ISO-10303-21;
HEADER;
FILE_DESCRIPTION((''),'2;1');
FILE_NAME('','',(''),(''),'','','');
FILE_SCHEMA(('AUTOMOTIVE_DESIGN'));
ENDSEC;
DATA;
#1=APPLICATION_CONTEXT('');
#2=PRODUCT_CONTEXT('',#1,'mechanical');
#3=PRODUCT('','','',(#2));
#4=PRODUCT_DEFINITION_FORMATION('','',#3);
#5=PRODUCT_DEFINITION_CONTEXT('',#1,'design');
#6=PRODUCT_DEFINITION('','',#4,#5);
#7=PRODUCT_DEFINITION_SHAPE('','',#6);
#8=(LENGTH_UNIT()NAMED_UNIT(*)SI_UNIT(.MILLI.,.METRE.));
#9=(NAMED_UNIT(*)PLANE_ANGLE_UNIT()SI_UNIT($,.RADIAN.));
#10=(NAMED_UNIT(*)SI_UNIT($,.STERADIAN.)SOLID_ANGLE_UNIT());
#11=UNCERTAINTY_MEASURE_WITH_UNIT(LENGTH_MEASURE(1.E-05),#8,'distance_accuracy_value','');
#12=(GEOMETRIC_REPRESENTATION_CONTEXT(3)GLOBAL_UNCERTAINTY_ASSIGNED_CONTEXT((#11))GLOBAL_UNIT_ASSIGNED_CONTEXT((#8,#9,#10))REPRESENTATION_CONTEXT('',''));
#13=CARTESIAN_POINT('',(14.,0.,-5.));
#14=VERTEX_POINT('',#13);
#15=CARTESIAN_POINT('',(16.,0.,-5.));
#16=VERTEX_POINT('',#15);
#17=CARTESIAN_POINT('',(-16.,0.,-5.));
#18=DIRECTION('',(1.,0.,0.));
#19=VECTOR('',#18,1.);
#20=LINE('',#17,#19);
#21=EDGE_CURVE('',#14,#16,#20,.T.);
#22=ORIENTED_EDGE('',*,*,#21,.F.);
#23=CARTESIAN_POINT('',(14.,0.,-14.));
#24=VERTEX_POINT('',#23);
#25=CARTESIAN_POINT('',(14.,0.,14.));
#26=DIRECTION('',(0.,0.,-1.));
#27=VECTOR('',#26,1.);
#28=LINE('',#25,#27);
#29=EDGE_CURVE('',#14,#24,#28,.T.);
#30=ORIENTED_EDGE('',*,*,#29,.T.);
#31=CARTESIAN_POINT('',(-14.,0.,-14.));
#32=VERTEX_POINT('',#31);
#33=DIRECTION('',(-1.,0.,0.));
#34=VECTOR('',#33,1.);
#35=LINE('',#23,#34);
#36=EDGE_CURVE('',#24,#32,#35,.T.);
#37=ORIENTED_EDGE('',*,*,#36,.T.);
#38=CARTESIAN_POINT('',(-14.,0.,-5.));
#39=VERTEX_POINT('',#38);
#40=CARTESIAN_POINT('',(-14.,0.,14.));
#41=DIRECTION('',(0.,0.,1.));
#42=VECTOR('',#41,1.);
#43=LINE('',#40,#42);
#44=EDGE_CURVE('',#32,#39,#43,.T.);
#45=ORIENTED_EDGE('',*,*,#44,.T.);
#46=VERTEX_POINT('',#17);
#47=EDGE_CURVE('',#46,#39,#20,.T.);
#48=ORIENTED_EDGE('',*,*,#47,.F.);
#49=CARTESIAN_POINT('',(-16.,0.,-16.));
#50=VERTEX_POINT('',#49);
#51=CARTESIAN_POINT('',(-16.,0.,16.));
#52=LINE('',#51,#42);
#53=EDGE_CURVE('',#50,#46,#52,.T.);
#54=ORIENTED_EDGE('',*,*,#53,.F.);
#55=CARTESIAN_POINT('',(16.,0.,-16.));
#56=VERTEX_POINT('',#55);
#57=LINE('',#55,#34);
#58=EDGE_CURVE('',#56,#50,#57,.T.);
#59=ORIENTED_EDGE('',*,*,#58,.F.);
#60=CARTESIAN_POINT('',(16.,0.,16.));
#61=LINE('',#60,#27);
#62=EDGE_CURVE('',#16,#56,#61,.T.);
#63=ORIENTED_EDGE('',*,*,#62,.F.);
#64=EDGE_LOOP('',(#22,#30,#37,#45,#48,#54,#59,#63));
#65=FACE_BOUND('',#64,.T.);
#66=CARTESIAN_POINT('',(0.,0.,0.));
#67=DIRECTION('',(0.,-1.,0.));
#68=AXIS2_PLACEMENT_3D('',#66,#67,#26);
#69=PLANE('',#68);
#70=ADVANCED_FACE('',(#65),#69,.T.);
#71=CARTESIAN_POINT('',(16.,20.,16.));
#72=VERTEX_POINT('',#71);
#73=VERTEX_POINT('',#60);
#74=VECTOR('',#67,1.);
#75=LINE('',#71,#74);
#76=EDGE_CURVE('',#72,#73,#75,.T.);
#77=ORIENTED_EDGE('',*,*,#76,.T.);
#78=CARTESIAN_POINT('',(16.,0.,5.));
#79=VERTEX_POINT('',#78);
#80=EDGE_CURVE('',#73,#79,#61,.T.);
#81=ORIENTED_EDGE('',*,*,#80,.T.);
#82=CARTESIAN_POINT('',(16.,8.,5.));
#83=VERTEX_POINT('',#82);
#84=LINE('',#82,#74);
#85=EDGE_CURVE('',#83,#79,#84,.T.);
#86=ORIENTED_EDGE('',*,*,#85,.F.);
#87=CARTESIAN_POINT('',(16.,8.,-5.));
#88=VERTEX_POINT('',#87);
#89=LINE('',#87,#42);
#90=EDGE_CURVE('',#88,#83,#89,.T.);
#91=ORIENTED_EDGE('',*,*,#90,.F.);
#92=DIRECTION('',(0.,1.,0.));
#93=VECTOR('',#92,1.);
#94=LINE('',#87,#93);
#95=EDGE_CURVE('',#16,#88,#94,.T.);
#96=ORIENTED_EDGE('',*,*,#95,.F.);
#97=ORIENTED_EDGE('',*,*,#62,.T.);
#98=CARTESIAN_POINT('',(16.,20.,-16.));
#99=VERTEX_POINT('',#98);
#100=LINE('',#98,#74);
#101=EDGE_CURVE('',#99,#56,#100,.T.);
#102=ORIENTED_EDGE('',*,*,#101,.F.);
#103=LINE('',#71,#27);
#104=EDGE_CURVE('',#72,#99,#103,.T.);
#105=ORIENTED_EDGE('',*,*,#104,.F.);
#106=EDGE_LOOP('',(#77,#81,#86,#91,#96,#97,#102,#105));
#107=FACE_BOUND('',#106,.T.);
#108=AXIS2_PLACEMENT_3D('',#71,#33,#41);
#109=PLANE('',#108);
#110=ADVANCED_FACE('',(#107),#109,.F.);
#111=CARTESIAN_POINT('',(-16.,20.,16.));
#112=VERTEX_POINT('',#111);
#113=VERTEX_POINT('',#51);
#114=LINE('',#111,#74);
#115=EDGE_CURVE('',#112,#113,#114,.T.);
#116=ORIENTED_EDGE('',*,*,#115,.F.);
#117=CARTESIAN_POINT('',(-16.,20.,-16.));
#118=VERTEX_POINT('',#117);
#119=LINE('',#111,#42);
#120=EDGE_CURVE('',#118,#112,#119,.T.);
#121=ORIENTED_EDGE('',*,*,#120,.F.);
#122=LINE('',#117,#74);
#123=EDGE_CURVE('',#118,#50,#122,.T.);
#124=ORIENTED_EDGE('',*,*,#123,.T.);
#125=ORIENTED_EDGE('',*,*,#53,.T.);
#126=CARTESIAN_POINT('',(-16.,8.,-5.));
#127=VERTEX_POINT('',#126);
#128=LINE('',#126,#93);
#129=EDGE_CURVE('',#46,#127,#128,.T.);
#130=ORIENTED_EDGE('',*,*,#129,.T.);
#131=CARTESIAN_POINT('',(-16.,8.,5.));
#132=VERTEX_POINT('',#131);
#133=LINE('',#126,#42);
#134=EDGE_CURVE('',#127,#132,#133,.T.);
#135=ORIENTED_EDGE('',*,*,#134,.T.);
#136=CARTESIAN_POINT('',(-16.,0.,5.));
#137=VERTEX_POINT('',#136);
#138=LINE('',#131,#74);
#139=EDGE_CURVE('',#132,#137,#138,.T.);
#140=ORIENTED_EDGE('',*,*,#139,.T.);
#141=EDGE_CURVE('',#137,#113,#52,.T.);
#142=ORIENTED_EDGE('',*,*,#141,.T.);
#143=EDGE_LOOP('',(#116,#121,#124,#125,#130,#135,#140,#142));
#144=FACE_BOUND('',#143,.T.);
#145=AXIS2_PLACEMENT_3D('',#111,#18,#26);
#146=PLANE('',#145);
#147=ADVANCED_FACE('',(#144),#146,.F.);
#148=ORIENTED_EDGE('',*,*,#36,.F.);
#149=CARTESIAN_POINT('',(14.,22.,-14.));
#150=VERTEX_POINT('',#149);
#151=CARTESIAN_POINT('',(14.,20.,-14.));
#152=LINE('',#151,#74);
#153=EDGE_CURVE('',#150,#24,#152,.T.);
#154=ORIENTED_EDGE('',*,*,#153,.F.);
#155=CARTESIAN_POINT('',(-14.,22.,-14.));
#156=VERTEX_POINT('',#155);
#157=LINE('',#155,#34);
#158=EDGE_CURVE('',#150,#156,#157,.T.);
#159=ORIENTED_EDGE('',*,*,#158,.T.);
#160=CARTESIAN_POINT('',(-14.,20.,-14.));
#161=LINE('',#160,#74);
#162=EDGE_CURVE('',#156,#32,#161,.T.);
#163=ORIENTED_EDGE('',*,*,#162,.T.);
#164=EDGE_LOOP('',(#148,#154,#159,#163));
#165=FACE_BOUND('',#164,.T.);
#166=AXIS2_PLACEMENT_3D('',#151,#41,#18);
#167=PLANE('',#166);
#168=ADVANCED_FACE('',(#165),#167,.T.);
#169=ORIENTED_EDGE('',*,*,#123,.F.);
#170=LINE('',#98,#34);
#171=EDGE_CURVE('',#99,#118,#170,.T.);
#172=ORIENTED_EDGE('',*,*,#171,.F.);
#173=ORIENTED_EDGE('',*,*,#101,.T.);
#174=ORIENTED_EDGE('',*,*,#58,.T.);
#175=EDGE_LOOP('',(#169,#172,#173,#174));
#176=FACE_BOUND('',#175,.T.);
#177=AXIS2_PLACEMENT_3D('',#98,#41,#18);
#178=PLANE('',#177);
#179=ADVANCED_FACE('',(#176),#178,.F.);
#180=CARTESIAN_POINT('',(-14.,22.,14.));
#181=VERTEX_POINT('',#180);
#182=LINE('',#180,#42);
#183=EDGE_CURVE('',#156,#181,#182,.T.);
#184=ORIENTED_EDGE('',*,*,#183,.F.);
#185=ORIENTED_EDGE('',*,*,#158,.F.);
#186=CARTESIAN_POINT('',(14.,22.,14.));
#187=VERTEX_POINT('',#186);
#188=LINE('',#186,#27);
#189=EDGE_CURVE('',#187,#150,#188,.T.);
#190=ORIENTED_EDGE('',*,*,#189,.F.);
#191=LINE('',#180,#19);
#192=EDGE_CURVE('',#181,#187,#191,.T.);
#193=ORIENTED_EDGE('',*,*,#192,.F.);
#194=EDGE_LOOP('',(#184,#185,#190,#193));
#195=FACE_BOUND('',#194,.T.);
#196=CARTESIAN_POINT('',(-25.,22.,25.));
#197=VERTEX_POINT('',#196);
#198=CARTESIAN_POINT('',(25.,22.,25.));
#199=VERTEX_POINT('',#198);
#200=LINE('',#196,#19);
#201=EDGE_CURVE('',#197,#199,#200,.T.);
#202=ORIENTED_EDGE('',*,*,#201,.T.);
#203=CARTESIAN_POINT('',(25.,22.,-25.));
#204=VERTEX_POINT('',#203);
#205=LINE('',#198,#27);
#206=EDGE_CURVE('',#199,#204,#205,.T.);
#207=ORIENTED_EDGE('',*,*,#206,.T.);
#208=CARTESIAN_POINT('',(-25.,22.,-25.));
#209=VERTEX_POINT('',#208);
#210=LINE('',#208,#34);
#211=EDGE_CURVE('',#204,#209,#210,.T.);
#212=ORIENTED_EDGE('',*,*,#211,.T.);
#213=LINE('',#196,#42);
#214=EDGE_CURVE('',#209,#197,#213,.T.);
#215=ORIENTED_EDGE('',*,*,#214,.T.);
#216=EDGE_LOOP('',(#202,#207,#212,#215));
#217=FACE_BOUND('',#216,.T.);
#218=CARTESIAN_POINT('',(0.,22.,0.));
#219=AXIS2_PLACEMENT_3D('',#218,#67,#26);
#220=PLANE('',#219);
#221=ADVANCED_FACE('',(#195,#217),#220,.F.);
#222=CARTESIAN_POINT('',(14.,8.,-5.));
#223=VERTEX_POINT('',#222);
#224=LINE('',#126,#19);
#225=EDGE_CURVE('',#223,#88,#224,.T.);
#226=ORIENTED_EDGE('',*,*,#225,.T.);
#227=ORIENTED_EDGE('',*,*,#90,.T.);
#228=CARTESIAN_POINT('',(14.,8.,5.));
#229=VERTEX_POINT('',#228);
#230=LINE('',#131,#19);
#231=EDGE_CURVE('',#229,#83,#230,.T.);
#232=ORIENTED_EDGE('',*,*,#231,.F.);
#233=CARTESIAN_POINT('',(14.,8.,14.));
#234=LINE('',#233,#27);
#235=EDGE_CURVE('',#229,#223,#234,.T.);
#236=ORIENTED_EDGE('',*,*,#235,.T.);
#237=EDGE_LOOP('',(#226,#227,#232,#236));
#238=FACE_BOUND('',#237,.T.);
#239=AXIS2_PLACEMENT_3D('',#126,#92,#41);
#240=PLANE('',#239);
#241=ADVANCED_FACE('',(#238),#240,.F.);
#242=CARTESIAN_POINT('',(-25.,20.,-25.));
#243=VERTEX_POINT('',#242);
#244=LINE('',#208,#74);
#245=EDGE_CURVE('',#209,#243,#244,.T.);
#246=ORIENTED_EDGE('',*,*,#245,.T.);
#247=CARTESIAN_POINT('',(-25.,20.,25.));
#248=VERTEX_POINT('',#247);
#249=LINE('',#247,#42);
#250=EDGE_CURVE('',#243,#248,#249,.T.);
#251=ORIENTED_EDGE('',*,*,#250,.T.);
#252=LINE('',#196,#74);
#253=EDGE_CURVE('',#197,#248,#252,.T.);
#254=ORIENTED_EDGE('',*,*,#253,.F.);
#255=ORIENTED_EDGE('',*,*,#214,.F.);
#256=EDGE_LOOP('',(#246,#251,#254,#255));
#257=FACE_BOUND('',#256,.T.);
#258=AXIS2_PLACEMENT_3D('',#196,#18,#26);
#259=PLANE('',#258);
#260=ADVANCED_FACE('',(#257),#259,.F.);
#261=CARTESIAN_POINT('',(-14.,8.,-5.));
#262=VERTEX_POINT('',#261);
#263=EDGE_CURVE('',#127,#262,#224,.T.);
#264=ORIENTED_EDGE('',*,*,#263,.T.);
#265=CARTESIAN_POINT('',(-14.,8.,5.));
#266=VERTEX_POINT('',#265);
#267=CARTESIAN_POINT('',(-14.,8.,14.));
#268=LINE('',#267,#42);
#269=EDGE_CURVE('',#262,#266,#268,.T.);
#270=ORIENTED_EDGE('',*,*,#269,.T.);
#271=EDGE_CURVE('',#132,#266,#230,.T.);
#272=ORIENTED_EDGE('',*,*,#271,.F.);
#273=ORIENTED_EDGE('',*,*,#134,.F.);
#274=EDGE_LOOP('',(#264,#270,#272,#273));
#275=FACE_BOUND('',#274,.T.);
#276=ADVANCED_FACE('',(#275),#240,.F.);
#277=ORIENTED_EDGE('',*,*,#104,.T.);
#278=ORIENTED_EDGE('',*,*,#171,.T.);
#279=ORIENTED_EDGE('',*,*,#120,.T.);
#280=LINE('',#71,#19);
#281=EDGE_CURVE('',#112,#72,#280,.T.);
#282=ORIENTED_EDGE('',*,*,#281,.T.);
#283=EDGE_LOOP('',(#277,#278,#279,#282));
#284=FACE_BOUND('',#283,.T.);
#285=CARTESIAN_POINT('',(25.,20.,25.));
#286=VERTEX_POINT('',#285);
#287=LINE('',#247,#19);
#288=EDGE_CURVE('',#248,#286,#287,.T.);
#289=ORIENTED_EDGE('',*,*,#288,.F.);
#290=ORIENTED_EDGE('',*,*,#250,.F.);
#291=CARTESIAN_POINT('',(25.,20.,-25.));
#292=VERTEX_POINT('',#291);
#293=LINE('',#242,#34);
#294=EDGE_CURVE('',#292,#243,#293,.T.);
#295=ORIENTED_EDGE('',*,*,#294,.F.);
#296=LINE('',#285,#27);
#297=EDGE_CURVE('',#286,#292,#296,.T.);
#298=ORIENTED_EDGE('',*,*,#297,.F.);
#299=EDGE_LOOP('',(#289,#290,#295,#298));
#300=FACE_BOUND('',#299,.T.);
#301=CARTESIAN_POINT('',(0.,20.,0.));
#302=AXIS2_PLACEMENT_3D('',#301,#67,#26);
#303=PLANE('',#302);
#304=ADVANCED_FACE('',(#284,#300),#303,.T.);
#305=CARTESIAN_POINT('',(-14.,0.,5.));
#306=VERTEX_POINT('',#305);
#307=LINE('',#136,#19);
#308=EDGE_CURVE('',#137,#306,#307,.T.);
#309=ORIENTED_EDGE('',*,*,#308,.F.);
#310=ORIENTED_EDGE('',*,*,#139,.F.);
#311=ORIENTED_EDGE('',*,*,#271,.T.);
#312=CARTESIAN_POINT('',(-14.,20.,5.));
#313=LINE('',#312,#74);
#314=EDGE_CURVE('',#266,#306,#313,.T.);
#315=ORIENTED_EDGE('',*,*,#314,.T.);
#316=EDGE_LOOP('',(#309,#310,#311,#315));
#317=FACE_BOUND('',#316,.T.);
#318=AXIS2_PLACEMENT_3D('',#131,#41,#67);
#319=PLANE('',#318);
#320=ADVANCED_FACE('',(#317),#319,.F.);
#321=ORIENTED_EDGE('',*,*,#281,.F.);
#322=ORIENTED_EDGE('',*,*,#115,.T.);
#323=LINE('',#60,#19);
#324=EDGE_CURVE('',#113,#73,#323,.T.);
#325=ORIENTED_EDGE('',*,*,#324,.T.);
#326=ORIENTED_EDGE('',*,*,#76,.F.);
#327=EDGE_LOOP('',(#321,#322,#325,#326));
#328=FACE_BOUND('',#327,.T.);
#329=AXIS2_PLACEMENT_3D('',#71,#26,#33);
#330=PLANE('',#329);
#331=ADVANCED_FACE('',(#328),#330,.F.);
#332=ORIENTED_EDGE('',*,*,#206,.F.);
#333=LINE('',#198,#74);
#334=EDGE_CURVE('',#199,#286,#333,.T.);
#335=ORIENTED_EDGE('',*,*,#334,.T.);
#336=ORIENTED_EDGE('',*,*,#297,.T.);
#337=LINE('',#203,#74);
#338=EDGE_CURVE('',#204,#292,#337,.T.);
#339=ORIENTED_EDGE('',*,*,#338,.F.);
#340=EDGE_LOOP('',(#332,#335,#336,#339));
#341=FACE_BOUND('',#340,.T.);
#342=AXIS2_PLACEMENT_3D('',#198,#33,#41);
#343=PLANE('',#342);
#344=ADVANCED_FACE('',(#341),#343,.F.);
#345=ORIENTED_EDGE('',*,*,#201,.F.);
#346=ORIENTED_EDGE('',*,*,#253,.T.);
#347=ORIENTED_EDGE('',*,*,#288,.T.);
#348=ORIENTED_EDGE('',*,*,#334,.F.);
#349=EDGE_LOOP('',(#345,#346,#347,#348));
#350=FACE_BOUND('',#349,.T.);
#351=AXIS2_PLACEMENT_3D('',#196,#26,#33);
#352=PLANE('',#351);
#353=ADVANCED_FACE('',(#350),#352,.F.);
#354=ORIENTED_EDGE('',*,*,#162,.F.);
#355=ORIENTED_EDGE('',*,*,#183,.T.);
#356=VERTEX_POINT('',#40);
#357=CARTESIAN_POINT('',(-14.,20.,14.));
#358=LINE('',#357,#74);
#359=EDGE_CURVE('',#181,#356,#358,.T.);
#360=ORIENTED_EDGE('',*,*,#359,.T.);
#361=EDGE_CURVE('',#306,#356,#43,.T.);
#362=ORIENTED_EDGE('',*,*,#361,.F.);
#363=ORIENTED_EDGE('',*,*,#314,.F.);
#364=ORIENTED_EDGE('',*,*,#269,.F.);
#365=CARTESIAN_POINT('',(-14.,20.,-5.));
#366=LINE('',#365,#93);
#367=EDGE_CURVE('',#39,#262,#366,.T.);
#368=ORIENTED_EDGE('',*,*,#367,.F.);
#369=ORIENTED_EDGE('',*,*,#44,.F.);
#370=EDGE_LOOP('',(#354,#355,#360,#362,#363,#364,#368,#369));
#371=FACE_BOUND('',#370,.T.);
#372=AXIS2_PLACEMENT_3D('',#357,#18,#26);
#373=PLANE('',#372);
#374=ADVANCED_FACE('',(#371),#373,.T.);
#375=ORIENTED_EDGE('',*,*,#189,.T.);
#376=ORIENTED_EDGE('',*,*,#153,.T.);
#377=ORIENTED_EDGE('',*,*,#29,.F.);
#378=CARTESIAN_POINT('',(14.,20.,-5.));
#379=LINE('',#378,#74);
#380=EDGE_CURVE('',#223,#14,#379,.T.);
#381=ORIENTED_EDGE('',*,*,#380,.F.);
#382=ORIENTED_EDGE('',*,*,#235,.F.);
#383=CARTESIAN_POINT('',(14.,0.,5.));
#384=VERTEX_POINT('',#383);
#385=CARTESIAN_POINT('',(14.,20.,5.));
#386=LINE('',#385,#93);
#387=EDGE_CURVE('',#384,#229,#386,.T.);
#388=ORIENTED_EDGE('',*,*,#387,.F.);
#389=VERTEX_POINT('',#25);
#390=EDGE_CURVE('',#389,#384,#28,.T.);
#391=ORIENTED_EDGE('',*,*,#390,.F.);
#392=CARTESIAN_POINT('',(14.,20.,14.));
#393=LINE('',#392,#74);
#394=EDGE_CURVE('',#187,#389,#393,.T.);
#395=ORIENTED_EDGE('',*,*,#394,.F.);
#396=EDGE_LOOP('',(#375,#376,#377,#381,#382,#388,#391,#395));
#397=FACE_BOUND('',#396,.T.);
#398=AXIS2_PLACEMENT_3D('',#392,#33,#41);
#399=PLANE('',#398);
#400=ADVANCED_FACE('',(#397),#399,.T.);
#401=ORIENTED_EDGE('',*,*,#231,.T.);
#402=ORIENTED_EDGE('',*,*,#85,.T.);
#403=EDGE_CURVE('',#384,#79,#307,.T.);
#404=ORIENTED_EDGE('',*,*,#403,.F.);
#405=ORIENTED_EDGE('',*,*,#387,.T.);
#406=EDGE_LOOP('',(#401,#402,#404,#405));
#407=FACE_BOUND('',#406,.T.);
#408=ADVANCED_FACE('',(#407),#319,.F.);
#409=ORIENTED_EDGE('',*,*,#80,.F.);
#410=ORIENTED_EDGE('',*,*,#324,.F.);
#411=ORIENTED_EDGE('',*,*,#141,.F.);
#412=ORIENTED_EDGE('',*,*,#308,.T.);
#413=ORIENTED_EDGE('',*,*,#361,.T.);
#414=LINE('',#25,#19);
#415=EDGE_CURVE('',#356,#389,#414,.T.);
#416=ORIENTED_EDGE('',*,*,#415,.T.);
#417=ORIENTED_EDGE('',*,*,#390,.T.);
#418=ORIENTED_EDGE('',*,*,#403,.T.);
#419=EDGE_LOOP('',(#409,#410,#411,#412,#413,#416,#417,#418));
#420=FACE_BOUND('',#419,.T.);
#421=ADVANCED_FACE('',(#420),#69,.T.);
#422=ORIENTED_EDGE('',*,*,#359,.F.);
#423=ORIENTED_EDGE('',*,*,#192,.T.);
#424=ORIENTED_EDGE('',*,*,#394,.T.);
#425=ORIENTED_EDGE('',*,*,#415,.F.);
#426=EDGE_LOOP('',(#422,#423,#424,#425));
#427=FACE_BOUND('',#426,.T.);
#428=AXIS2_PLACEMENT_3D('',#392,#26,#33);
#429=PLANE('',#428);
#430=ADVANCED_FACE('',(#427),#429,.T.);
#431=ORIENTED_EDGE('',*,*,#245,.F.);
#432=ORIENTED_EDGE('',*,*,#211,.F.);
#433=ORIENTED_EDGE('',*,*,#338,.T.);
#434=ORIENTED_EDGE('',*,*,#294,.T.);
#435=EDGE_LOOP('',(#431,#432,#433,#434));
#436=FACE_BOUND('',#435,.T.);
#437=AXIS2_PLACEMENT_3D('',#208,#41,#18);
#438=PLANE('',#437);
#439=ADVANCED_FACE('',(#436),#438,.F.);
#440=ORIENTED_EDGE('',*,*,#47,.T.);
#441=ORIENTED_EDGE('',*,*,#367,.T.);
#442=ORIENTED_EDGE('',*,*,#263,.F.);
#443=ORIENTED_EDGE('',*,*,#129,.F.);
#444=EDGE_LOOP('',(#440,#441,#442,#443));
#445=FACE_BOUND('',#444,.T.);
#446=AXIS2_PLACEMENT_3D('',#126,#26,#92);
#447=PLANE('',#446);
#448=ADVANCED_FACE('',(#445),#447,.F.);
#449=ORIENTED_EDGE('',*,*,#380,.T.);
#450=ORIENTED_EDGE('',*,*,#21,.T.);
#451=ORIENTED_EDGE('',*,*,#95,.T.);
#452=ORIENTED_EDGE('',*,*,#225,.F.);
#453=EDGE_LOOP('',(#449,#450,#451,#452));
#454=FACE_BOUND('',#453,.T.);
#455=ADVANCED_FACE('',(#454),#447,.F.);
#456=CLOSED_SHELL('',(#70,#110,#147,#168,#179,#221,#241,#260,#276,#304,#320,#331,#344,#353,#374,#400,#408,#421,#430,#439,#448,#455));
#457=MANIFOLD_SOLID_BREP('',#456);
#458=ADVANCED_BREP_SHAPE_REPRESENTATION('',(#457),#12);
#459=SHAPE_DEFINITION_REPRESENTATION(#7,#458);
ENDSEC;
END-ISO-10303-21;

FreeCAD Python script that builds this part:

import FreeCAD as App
import Part
import Sketcher
from FreeCAD import Vector


def add_polygon(sketch, points):
    """Adds a closed chain of lines whose ends are joined by coincident constraints."""
    first, n = sketch.GeometryCount, len(points)
    for a, b in zip(points, points[1:] + points[:1]):
        sketch.addGeometry(Part.LineSegment(App.Vector(*a, 0), App.Vector(*b, 0)), False)
    for i in range(n):
        sketch.addConstraint(Sketcher.Constraint("Coincident", first + i, 2, first + (i + 1) % n, 1))

doc = App.newDocument("Part")
body = doc.addObject("PartDesign::Body", "Body")

sketch1 = body.newObject("Sketcher::SketchObject", "Sketch")
sketch1.AttachmentSupport = (doc.getObject("XZ_Plane"), [""])
sketch1.MapMode = "FlatFace"
add_polygon(sketch1, [(-16, -16), (-16, 16), (16, 16), (16, -16)])
add_polygon(sketch1, [(14, 14), (-14, 14), (-14, -14), (14, -14)])
sketch1.addConstraint([
    Sketcher.Constraint("Vertical", 0),
    Sketcher.Constraint("Horizontal", 1),
    Sketcher.Constraint("Vertical", 2),
    Sketcher.Constraint("Horizontal", 3),
    Sketcher.Constraint("Horizontal", 4),
    Sketcher.Constraint("Vertical", 5),
    Sketcher.Constraint("Horizontal", 6),
    Sketcher.Constraint("Vertical", 7),
    Sketcher.Constraint("Symmetric", 0, 2, 2, 2, -1, 1),
    Sketcher.Constraint("Symmetric", 4, 2, 6, 2, -1, 1),
    Sketcher.Constraint("Equal", 3, 0),
    Sketcher.Constraint("Equal", 6, 5),
    Sketcher.Constraint("DistanceX", 1, 1, 1, 2, 32.0),
    Sketcher.Constraint("DistanceX", 4, 2, 4, 1, 28.0),
])
pad1 = body.newObject("PartDesign::Pad", "Pad")
pad1.Profile = sketch1
pad1.Length = 20
pad1.Reversed = True

sketch2 = body.newObject("Sketcher::SketchObject", "Sketch001")
sketch2.AttachmentSupport = (doc.getObject("YZ_Plane"), [""])
sketch2.MapMode = "FlatFace"
sketch2.AttachmentOffset = App.Placement(Vector(0, 0, 16), App.Rotation())
add_polygon(sketch2, [(8, 5), (0, 5), (0, -5), (8, -5)])
sketch2.addConstraint([
    Sketcher.Constraint("Horizontal", 0),
    Sketcher.Constraint("Vertical", 1),
    Sketcher.Constraint("Horizontal", 2),
    Sketcher.Constraint("Vertical", 3),
    Sketcher.Constraint("Symmetric", 0, 2, 1, 2, -1, 1),
    Sketcher.Constraint("DistanceX", 0, 2, 0, 1, 8.0),
    Sketcher.Constraint("DistanceY", 1, 2, 1, 1, 10.0),
])
pocket1 = body.newObject("PartDesign::Pocket", "Pocket")
pocket1.Profile = sketch2
pocket1.Type = "ThroughAll"

sketch3 = body.newObject("Sketcher::SketchObject", "Sketch002")
sketch3.AttachmentSupport = (doc.getObject("XZ_Plane"), [""])
sketch3.MapMode = "FlatFace"
sketch3.AttachmentOffset = App.Placement(Vector(0, 0, -20), App.Rotation())
add_polygon(sketch3, [(-25, -25), (-25, 25), (25, 25), (25, -25)])
add_polygon(sketch3, [(14, 14), (-14, 14), (-14, -14), (14, -14)])
sketch3.addConstraint([
    Sketcher.Constraint("Vertical", 0),
    Sketcher.Constraint("Horizontal", 1),
    Sketcher.Constraint("Vertical", 2),
    Sketcher.Constraint("Horizontal", 3),
    Sketcher.Constraint("Horizontal", 4),
    Sketcher.Constraint("Vertical", 5),
    Sketcher.Constraint("Horizontal", 6),
    Sketcher.Constraint("Vertical", 7),
    Sketcher.Constraint("Symmetric", 0, 2, 2, 2, -1, 1),
    Sketcher.Constraint("Symmetric", 4, 2, 6, 2, -1, 1),
    Sketcher.Constraint("Equal", 3, 0),
    Sketcher.Constraint("Equal", 6, 5),
    Sketcher.Constraint("DistanceX", 1, 1, 1, 2, 50.0),
    Sketcher.Constraint("DistanceX", 4, 2, 4, 1, 28.0),
])
pad2 = body.newObject("PartDesign::Pad", "Pad001")
pad2.Profile = sketch3
pad2.Length = 2
pad2.Reversed = True

doc.recompute()
